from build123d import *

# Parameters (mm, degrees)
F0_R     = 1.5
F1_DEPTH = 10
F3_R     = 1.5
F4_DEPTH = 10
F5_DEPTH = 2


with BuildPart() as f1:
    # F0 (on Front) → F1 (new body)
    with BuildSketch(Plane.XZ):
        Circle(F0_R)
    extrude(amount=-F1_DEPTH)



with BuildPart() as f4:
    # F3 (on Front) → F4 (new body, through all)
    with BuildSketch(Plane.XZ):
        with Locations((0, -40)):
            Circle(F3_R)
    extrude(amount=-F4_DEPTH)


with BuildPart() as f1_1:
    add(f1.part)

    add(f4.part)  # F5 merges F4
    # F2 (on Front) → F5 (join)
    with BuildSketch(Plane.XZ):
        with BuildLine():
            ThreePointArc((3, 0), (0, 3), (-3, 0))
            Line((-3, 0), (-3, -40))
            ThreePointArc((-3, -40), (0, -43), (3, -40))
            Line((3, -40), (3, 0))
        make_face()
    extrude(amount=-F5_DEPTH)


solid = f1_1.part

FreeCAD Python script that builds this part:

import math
import FreeCAD as App
import Part
import Sketcher
from FreeCAD import Vector
Q = App.Units.Quantity

doc = App.newDocument("Part")
body = doc.addObject("PartDesign::Body", "Body")

sketch1 = body.newObject("Sketcher::SketchObject", "Sketch")
sketch1.AttachmentSupport = (doc.getObject("XZ_Plane"), [""])
sketch1.MapMode = "FlatFace"
sketch1.addGeometry(Part.Circle(Vector(0, 0, 0), Vector(0, 0, 1), 1.5), False)
sketch1.addConstraint(Sketcher.Constraint("Coincident", 0, 3, -1, 1))
sketch1.addConstraint(Sketcher.Constraint("Diameter", 0, Q("3 mm")))
pad1 = body.newObject("PartDesign::Pad", "Pad")
pad1.Profile = sketch1
pad1.Length = 10
pad1.Reversed = True
body2 = doc.addObject("PartDesign::Body", "Body001")

sketch2 = body2.newObject("Sketcher::SketchObject", "Sketch001")
sketch2.AttachmentSupport = (doc.getObject("XZ_Plane001"), [""])
sketch2.MapMode = "FlatFace"
sketch2.addGeometry(Part.Circle(Vector(0, -40, 0), Vector(0, 0, 1), 1.5), False)
sketch2.addConstraint(Sketcher.Constraint("PointOnObject", 0, 3, -2))
sketch2.addConstraint(Sketcher.Constraint("Diameter", 0, Q("3 mm")))
sketch2.addConstraint(Sketcher.Constraint("DistanceY", 0, 3, -1, 1, Q("40 mm")))
pad2 = body2.newObject("PartDesign::Pad", "Pad001")
pad2.Profile = sketch2
pad2.Length = 10
pad2.Reversed = True
body.AllowCompound = True
doc.recompute()

boolean = body.newObject("PartDesign::Boolean", "Boolean")
boolean.Type = "Fuse"
boolean.addObjects([body2])

sketch3 = body.newObject("Sketcher::SketchObject", "Sketch002")
sketch3.AttachmentSupport = (doc.getObject("XZ_Plane"), [""])
sketch3.MapMode = "FlatFace"
sketch3.addGeometry(Part.ArcOfCircle(Part.Circle(Vector(0, 0, 0), Vector(0, 0, 1), 3), math.radians(0), math.radians(180)), False)
sketch3.addGeometry(Part.LineSegment(Vector(-3, 0, 0), Vector(-3, -40, 0)), False)
sketch3.addGeometry(Part.ArcOfCircle(Part.Circle(Vector(0, -40, 0), Vector(0, 0, 1), 3), math.radians(180), math.radians(360)), False)
sketch3.addGeometry(Part.LineSegment(Vector(3, -40, 0), Vector(3, 0, 0)), False)
sketch3.addConstraint(Sketcher.Constraint("Tangent", 0, 2, 1, 1))
sketch3.addConstraint(Sketcher.Constraint("Tangent", 1, 2, 2, 1))
sketch3.addConstraint(Sketcher.Constraint("Tangent", 2, 2, 3, 1))
sketch3.addConstraint(Sketcher.Constraint("Tangent", 3, 2, 0, 1))
sketch3.addConstraint(Sketcher.Constraint("Vertical", 1))
sketch3.addConstraint(Sketcher.Constraint("Vertical", 3))
sketch3.addConstraint(Sketcher.Constraint("Coincident", 0, 3, -1, 1))
sketch3.addConstraint(Sketcher.Constraint("Radius", 0, Q("3 mm")))
sketch3.addConstraint(Sketcher.Constraint("DistanceY", 1, 2, 1, 1, Q("40 mm")))
pad3 = body.newObject("PartDesign::Pad", "Pad002")
pad3.Profile = sketch3
pad3.Length = 2
pad3.Reversed = True

doc.recompute()
